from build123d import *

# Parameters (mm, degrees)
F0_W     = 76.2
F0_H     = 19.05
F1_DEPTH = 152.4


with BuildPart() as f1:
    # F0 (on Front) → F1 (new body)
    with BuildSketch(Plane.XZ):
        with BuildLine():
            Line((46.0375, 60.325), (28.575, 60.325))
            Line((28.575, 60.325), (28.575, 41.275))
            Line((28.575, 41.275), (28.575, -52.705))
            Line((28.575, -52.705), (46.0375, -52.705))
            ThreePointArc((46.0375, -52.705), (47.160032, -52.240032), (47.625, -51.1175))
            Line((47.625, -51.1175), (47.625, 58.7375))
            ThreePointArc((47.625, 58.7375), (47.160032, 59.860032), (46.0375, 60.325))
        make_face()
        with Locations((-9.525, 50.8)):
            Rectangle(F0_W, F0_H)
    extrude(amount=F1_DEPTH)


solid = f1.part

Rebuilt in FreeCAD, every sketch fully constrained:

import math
import FreeCAD as App
import Part
import Sketcher

V = App.Vector
Q = App.Units.Quantity

doc = App.newDocument("Part")
body = doc.addObject("PartDesign::Body", "Body")

sketch1 = body.newObject("Sketcher::SketchObject", "Sketch")
sketch1.AttachmentSupport = (doc.getObject("XZ_Plane"), [""])
sketch1.MapMode = "FlatFace"
sketch1.addGeometry([
    Part.LineSegment(V(46, 60.3, 0), V(-47.6, 60.3, 0)),
    Part.LineSegment(V(-47.6, 60.3, 0), V(-47.6, 41.3, 0)),
    Part.LineSegment(V(-47.6, 41.3, 0), V(28.6, 41.3, 0)),
    Part.LineSegment(V(28.6, 41.3, 0), V(28.6, -52.7, 0)),
    Part.LineSegment(V(28.6, -52.7, 0), V(46, -52.7, 0)),
    Part.ArcOfCircle(Part.Circle(V(46, -51.1, 0), V(0, 0, 1), 1.6), math.radians(-90), math.radians(0)),
    Part.LineSegment(V(47.6, -51.1, 0), V(47.6, 58.7, 0)),
    Part.ArcOfCircle(Part.Circle(V(46, 58.7, 0), V(0, 0, 1), 1.6), math.radians(0), math.radians(90)),
], False)
sketch1.addConstraint([
    Sketcher.Constraint("Coincident", 0, 2, 1, 1),
    Sketcher.Constraint("Coincident", 1, 2, 2, 1),
    Sketcher.Constraint("Coincident", 2, 2, 3, 1),
    Sketcher.Constraint("Coincident", 3, 2, 4, 1),
    Sketcher.Constraint("Tangent", 4, 2, 5, 1),
    Sketcher.Constraint("Tangent", 5, 2, 6, 1),
    Sketcher.Constraint("Tangent", 6, 2, 7, 1),
    Sketcher.Constraint("Tangent", 7, 2, 0, 1),
    Sketcher.Constraint("Horizontal", 0),
    Sketcher.Constraint("Vertical", 1),
    Sketcher.Constraint("Horizontal", 2),
    Sketcher.Constraint("Vertical", 3),
    Sketcher.Constraint("Horizontal", 4),
    Sketcher.Constraint("Vertical", 6),
    Sketcher.Constraint("Equal", 5, 7),
    Sketcher.Constraint("DistanceX", 2, 1, 2, 2, Q("3 in")),
    Sketcher.Constraint("DistanceY", 3, 2, 3, 1, Q("3.7 in")),
    Sketcher.Constraint("Radius", 5, Q("0.0625 in")),
    Sketcher.Constraint("DistanceY", 1, 2, 1, 1, Q("0.75 in")),
    Sketcher.Constraint("DistanceX", 0, 2, 0, 1, Q("3.6875 in")),
    Sketcher.Constraint("DistanceX", -1, 1, 5, 3, Q("1.8125 in")),
    Sketcher.Constraint("DistanceY", -1, 1, 7, 3, Q("2.3125 in")),
])
pad1 = body.newObject("PartDesign::Pad", "Pad")
pad1.Profile = sketch1
pad1.Length = Q("6 in")

doc.recompute()
